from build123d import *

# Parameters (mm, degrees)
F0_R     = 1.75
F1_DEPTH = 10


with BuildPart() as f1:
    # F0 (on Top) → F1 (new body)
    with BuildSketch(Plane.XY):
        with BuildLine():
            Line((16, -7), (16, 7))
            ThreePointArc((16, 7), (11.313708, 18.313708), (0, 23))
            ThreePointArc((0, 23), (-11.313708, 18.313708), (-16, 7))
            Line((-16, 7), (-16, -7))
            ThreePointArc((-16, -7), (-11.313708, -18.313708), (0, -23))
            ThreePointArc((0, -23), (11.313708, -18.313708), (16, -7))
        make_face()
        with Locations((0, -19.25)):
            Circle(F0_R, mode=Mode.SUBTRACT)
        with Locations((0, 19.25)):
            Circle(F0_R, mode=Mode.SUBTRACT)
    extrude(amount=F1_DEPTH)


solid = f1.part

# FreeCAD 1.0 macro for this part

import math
import FreeCAD as App
import Part
import Sketcher

V = App.Vector

doc = App.newDocument("Part")
body = doc.addObject("PartDesign::Body", "Body")

sketch1 = body.newObject("Sketcher::SketchObject", "Sketch")
sketch1.AttachmentSupport = (doc.getObject("XY_Plane"), [""])
sketch1.MapMode = "FlatFace"
sketch1.addGeometry(Part.LineSegment(V(16, -7, 0), V(16, 7, 0)), False)
sketch1.addGeometry(Part.ArcOfCircle(Part.Circle(V(-0.000002, 6.999998, 0), V(0, 0, 1), 16.000002), math.radians(0.000006), math.radians(89.999994)), False)
sketch1.addGeometry(Part.ArcOfCircle(Part.Circle(V(0.000002, 6.999998, 0), V(0, 0, 1), 16.000002), math.radians(90.000006), math.radians(179.999994)), False)
sketch1.addGeometry(Part.LineSegment(V(-16, 7, 0), V(-16, -7, 0)), False)
sketch1.addGeometry(Part.ArcOfCircle(Part.Circle(V(0.000002, -6.999998, 0), V(0, 0, 1), 16.000002), math.radians(-179.999994), math.radians(-90.000006)), False)
sketch1.addGeometry(Part.ArcOfCircle(Part.Circle(V(-0.000002, -6.999998, 0), V(0, 0, 1), 16.000002), math.radians(-89.999994), math.radians(-0.000006)), False)
sketch1.addGeometry(Part.Circle(V(0, -19.25, 0), V(0, 0, 1), 1.75), False)
sketch1.addGeometry(Part.Circle(V(0, 19.25, 0), V(0, 0, 1), 1.75), False)
sketch1.addConstraint(Sketcher.Constraint("Tangent", 0, 2, 1, 1))
sketch1.addConstraint(Sketcher.Constraint("Tangent", 1, 2, 2, 1))
sketch1.addConstraint(Sketcher.Constraint("Tangent", 2, 2, 3, 1))
sketch1.addConstraint(Sketcher.Constraint("Tangent", 3, 2, 4, 1))
sketch1.addConstraint(Sketcher.Constraint("Tangent", 4, 2, 5, 1))
sketch1.addConstraint(Sketcher.Constraint("Tangent", 5, 2, 0, 1))
sketch1.addConstraint(Sketcher.Constraint("Vertical", 0))
sketch1.addConstraint(Sketcher.Constraint("Vertical", 3))
sketch1.addConstraint(Sketcher.Constraint("Equal", 1, 2))
sketch1.addConstraint(Sketcher.Constraint("Equal", 2, 4))
sketch1.addConstraint(Sketcher.Constraint("Equal", 6, 7))
sketch1.addConstraint(Sketcher.Constraint("Symmetric", 1, 3, 4, 3, -1, 1))
sketch1.addConstraint(Sketcher.Constraint("Symmetric", 6, 3, 7, 3, -1, 1))
sketch1.addConstraint(Sketcher.Constraint("PointOnObject", 6, 3, -2))
sketch1.addConstraint(Sketcher.Constraint("PointOnObject", 1, 2, -2))
sketch1.addConstraint(Sketcher.Constraint("PointOnObject", 4, 2, -2))
sketch1.addConstraint(Sketcher.Constraint("Radius", 1, 16.000002))
sketch1.addConstraint(Sketcher.Constraint("Diameter", 6, 3.5))
sketch1.addConstraint(Sketcher.Constraint("DistanceY", 0, 1, 0, 2, 14.0))
sketch1.addConstraint(Sketcher.Constraint("DistanceY", 6, 3, 7, 3, 38.5))
pad1 = body.newObject("PartDesign::Pad", "Pad")
pad1.Profile = sketch1
pad1.Length = 10

doc.recompute()
